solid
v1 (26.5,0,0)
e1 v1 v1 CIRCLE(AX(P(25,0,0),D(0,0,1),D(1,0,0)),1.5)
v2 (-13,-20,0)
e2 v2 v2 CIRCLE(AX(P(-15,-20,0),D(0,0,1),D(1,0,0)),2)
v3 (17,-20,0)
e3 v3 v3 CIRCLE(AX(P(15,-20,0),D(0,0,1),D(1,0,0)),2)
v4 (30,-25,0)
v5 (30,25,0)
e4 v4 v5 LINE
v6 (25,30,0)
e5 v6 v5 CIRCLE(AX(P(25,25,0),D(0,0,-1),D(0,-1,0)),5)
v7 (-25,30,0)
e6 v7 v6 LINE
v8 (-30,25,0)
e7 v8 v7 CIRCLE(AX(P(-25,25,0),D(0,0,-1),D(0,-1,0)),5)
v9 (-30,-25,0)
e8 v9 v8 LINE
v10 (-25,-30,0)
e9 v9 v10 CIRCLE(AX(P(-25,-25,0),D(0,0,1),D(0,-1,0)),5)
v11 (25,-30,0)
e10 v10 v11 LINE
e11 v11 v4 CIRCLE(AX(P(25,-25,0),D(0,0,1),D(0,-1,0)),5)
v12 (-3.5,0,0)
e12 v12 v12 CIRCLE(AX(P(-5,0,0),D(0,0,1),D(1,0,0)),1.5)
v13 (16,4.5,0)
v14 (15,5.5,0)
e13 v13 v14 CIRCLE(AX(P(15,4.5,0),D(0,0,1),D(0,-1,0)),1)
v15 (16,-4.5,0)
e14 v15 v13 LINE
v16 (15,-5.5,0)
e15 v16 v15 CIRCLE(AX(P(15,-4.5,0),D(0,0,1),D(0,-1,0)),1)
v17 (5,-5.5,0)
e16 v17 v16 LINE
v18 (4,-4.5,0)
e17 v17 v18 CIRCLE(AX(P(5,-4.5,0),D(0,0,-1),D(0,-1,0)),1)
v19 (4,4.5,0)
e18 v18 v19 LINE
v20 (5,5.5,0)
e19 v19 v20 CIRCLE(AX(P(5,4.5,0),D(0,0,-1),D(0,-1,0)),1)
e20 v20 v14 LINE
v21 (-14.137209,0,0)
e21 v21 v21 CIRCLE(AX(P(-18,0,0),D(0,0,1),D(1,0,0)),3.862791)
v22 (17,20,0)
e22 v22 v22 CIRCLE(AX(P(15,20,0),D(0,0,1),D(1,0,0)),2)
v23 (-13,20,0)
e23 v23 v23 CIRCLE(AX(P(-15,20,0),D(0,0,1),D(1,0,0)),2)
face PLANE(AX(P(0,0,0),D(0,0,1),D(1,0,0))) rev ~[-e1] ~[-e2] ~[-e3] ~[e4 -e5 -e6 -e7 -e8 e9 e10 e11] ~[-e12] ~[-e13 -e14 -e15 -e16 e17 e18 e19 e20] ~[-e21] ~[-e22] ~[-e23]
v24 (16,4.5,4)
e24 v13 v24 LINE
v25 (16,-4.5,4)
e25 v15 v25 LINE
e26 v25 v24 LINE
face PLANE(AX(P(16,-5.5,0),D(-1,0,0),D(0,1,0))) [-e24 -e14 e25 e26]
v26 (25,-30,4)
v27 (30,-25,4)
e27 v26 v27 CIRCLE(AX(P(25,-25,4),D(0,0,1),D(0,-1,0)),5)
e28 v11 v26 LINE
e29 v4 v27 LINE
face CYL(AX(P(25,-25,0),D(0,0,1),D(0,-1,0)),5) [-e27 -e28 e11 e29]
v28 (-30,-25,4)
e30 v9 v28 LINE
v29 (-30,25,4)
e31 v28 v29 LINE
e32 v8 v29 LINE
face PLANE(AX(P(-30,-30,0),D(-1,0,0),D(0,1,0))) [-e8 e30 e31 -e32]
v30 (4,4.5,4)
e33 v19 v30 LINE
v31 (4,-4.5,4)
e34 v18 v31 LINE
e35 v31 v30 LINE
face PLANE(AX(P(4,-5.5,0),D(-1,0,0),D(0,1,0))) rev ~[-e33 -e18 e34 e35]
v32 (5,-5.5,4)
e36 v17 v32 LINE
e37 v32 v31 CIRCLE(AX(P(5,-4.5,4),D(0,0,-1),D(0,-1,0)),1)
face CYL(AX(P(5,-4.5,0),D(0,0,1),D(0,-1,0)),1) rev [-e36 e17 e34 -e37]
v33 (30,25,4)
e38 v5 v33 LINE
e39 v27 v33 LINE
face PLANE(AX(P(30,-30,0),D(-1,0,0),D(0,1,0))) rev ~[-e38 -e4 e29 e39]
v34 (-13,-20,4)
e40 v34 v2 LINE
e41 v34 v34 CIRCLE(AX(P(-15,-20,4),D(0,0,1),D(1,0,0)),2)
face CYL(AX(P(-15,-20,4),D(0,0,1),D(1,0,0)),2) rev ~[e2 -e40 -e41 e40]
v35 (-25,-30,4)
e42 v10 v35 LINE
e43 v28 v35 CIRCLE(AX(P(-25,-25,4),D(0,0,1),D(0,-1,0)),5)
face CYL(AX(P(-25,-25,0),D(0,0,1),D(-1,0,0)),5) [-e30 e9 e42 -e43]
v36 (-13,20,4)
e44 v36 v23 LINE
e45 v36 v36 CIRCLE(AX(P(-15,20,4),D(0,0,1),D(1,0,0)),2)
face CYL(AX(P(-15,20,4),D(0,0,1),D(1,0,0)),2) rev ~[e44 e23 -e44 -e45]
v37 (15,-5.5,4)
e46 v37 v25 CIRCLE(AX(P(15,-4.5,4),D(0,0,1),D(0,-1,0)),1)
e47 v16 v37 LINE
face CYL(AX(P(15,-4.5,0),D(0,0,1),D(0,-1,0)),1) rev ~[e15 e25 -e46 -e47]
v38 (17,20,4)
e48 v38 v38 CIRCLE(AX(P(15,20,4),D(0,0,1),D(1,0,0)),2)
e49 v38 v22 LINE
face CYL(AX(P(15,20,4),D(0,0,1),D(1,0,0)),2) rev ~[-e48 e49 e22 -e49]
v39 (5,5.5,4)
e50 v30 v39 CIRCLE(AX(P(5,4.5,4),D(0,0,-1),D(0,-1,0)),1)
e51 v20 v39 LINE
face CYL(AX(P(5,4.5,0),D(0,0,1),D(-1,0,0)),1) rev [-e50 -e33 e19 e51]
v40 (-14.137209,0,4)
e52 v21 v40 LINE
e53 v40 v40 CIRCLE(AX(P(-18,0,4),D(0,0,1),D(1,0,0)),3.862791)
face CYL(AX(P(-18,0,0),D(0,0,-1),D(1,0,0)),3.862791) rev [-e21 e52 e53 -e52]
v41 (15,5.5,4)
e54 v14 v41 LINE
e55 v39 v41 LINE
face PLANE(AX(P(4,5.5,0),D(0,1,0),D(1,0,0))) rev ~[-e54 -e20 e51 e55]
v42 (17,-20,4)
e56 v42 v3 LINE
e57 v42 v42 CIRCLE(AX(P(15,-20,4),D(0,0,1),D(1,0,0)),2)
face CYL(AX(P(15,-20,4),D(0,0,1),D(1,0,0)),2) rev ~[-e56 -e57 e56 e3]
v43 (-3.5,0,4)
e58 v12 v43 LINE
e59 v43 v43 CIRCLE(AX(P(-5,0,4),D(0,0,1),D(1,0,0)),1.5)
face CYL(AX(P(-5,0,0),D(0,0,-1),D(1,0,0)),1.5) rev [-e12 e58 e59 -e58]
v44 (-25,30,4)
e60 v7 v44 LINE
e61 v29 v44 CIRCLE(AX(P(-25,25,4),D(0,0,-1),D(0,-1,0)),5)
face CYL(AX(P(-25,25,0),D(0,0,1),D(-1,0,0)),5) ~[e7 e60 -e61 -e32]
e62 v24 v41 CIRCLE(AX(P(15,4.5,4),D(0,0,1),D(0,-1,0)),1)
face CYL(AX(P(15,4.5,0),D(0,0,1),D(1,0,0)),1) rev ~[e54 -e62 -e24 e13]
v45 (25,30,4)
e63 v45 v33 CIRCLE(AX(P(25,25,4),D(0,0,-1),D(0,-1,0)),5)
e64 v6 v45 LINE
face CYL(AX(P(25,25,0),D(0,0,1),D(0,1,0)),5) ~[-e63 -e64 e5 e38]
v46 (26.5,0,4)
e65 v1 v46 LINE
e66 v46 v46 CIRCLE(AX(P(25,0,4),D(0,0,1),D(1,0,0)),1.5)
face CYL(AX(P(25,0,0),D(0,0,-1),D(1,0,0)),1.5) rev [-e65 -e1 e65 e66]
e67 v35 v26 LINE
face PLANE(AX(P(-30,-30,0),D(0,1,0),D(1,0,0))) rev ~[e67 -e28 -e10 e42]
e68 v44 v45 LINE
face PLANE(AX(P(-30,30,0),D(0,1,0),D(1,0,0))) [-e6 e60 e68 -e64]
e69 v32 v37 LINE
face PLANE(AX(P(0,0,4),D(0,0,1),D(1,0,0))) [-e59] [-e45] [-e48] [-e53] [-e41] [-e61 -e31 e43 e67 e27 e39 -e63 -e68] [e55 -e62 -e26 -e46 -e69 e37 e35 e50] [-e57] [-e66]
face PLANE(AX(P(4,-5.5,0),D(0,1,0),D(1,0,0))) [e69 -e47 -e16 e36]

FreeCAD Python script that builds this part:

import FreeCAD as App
import Part
import Sketcher
from FreeCAD import Vector
Q = App.Units.Quantity


def edges_at(feature, points):
    """Names of the edges that pass closest to the given points."""
    edges = feature.Shape.Edges
    near = lambda p: min(range(len(edges)), key=lambda i: edges[i].distToShape(Part.Vertex(*p))[0])
    return sorted({f"Edge{near(p) + 1}" for p in points})


def add_polygon(sketch, points):
    """Adds a closed chain of lines whose ends are joined by coincident constraints."""
    first, n = sketch.GeometryCount, len(points)
    for a, b in zip(points, points[1:] + points[:1]):
        sketch.addGeometry(Part.LineSegment(App.Vector(*a, 0), App.Vector(*b, 0)), False)
    for i in range(n):
        sketch.addConstraint(Sketcher.Constraint("Coincident", first + i, 2, first + (i + 1) % n, 1))

doc = App.newDocument("Part")
body = doc.addObject("PartDesign::Body", "Body")

# Sketch on XY plane
sketch1 = doc.addObject("Sketcher::SketchObject", "Sketch")
body.addObject(sketch1)
sketch1.AttachmentSupport = (doc.XY_Plane, [""])
sketch1.MapMode = "FlatFace"
add_polygon(sketch1, [(-30, 30), (-30, -30), (30, -30), (30, 30)])  # lines 0-3
sketch1.addGeometry(Part.Circle(Vector(-18, 0, 0), Vector(0, 0, 1), 3.862791), False)  # 4
sketch1.addGeometry(Part.Circle(Vector(-5, 0, 0), Vector(0, 0, 1), 1.5), False)  # 5
add_polygon(sketch1, [(16, -5.5), (4, -5.5), (4, 5.5), (16, 5.5)])  # lines 6-9
sketch1.addGeometry(Part.Circle(Vector(25, 0, 0), Vector(0, 0, 1), 1.5), False)  # 10
sketch1.addConstraint([
    Sketcher.Constraint("Vertical", 0),
    Sketcher.Constraint("Horizontal", 1),
    Sketcher.Constraint("Vertical", 2),
    Sketcher.Constraint("Horizontal", 3),
    Sketcher.Constraint("Horizontal", 6),
    Sketcher.Constraint("Vertical", 7),
    Sketcher.Constraint("Horizontal", 8),
    Sketcher.Constraint("Vertical", 9),
    Sketcher.Constraint("Equal", 5, 10),
    Sketcher.Constraint("Symmetric", 0, 2, 2, 2, -1, 1),
    Sketcher.Constraint("PointOnObject", 4, 3, -1),
    Sketcher.Constraint("PointOnObject", 5, 3, -1),
    Sketcher.Constraint("PointOnObject", 10, 3, -1),
    Sketcher.Constraint("Equal", 3, 0),
    Sketcher.Constraint("Diameter", 5, Q("3 mm")),
    Sketcher.Constraint("DistanceX", 1, 1, 1, 2, Q("60 mm")),
    Sketcher.Constraint("DistanceX", 6, 2, 6, 1, Q("12 mm")),
    Sketcher.Constraint("DistanceY", 7, 1, 7, 2, Q("11 mm")),
    Sketcher.Constraint("DistanceX", 4, 3, -1, 1, Q("18 mm")),
    Sketcher.Constraint("DistanceX", 5, 3, -1, 1, Q("5 mm")),
    Sketcher.Constraint("DistanceX", -1, 1, 10, 3, Q("25 mm")),
    Sketcher.Constraint("DistanceX", -1, 1, 6, 2, Q("4 mm")),
    Sketcher.Constraint("DistanceY", 6, 2, -1, 1, Q("5.5 mm")),
    Sketcher.Constraint("Diameter", 4, Q("7.725582 mm")),
])
pad1 = doc.addObject("PartDesign::Pad", "Pad")
body.addObject(pad1)
pad1.Profile = sketch1
pad1.Length = 4

# Sketch on XY plane
sketch2 = doc.addObject("Sketcher::SketchObject", "Sketch001")
body.addObject(sketch2)
sketch2.AttachmentSupport = (doc.XY_Plane, [""])
sketch2.MapMode = "FlatFace"
sketch2.AttachmentOffset = App.Placement(Vector(0, 0, 4), App.Rotation())
sketch2.addGeometry([
    Part.Circle(Vector(-15, 20, 0), Vector(0, 0, 1), 2),
    Part.Circle(Vector(15, 20, 0), Vector(0, 0, 1), 2),
    Part.Circle(Vector(15, -20, 0), Vector(0, 0, 1), 2),
    Part.Circle(Vector(-15, -20, 0), Vector(0, 0, 1), 2),
], False)
sketch2.addConstraint([
    Sketcher.Constraint("Equal", 0, 1),
    Sketcher.Constraint("Equal", 1, 2),
    Sketcher.Constraint("Equal", 2, 3),
    Sketcher.Constraint("Symmetric", 0, 3, 2, 3, -1, 1),
    Sketcher.Constraint("Symmetric", 1, 3, 3, 3, -1, 1),
    Sketcher.Constraint("Symmetric", 0, 3, 1, 3, -2),
    Sketcher.Constraint("Diameter", 0, Q("4 mm")),
    Sketcher.Constraint("DistanceX", 0, 3, -1, 1, Q("15 mm")),
    Sketcher.Constraint("DistanceY", -1, 1, 0, 3, Q("20 mm")),
])
pocket1 = doc.addObject("PartDesign::Pocket", "Pocket")
body.addObject(pocket1)
pocket1.Profile = sketch2
pocket1.Length = 25
doc.recompute()

fillet = doc.addObject("PartDesign::Fillet", "Fillet")
body.addObject(fillet)
fillet.Base = (pocket1, edges_at(pocket1, [
    (-30, 30, 2),
    (-30, -30, 2),
    (30, -30, 2),
    (30, 30, 2),
]))
fillet.Radius = 5
doc.recompute()

fillet2 = doc.addObject("PartDesign::Fillet", "Fillet001")
body.addObject(fillet2)
fillet2.Base = (fillet, edges_at(fillet, [
    (4, 5.5, 2),
    (16, 5.5, 2),
    (16, -5.5, 2),
    (4, -5.5, 2),
]))
fillet2.Radius = 1

doc.recompute()
